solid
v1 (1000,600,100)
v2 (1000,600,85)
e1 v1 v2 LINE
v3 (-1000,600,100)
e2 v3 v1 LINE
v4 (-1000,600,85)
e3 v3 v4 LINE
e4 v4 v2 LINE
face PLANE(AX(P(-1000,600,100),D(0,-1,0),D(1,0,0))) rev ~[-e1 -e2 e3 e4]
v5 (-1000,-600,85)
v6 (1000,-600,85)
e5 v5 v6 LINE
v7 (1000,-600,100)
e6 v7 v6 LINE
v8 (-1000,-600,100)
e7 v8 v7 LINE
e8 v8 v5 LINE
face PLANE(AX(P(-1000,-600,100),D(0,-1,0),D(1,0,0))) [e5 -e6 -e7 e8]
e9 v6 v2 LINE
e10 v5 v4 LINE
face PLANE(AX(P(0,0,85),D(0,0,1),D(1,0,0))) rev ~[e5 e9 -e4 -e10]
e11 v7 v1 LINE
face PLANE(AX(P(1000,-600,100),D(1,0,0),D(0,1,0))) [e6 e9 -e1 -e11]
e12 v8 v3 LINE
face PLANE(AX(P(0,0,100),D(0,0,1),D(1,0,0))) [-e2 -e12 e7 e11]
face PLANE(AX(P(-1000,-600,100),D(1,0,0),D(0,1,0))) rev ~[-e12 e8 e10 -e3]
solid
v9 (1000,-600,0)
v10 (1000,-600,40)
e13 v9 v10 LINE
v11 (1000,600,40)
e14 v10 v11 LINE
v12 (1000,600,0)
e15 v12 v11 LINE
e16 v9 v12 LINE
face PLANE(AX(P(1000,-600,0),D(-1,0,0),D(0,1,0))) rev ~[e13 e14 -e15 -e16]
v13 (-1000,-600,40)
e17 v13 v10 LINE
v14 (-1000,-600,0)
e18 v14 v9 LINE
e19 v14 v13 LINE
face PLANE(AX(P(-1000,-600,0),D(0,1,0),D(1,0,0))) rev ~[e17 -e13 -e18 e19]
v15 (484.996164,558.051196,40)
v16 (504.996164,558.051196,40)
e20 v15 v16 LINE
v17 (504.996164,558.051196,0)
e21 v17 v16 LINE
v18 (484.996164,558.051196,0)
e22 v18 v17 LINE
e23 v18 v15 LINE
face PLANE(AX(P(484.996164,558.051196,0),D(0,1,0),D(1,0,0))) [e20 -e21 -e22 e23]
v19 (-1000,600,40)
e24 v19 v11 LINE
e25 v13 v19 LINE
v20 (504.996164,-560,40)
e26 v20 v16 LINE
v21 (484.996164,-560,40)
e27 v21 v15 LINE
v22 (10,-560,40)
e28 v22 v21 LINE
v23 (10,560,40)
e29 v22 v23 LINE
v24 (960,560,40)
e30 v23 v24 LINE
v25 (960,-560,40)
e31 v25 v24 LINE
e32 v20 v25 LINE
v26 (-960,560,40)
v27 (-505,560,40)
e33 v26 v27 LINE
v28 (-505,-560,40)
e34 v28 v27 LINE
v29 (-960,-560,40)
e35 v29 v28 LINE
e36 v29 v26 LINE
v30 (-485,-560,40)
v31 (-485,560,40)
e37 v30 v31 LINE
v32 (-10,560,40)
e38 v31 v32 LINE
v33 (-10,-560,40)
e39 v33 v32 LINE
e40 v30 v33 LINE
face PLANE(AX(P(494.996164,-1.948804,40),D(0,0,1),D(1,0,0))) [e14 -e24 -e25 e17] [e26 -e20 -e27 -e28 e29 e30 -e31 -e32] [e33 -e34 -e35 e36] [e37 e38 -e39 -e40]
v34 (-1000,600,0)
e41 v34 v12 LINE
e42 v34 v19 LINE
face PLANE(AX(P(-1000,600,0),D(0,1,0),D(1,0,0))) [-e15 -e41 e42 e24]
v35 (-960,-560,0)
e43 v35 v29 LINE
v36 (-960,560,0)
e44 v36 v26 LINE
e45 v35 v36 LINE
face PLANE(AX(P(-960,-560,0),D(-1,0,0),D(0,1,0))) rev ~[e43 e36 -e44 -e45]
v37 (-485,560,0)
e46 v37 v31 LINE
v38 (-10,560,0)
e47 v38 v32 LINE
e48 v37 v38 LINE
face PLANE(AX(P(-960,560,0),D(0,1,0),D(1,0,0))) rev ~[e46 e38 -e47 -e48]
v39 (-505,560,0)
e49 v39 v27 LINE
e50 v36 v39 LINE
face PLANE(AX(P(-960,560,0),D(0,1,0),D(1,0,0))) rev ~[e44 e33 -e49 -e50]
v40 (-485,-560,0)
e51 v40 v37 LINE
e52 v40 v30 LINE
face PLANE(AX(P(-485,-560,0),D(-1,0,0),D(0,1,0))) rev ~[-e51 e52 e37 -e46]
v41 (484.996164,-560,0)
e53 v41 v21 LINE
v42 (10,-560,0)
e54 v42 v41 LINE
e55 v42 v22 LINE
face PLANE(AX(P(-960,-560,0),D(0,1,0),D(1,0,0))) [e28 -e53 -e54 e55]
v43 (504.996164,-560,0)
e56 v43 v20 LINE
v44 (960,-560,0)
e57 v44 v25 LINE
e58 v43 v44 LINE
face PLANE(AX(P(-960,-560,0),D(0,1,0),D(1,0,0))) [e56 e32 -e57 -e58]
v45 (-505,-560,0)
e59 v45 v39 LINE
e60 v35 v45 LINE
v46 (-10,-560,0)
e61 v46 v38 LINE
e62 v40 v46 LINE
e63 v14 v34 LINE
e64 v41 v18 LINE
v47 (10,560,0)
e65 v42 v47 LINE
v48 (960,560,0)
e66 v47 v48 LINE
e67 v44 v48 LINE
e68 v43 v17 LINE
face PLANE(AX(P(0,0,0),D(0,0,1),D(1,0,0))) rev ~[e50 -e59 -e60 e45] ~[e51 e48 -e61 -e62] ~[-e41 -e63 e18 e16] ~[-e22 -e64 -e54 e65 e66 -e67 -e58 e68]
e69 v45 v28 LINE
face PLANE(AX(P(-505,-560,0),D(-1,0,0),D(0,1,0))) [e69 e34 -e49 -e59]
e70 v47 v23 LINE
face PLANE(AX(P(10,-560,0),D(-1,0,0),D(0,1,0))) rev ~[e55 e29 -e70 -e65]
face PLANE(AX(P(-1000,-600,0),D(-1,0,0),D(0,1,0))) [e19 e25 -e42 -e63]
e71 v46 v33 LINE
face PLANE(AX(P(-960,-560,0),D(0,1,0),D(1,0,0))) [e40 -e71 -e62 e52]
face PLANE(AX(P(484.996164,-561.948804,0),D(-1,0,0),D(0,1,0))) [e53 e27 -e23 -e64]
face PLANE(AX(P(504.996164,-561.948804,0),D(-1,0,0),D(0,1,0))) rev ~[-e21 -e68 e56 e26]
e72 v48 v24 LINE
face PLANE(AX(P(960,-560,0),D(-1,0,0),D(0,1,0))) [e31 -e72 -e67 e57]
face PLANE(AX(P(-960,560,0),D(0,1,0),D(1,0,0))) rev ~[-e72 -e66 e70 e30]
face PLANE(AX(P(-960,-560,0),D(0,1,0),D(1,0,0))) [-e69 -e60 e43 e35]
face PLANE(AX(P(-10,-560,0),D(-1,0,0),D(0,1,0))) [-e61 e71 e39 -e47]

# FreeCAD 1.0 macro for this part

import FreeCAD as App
import Part
import Sketcher


def add_polygon(sketch, points):
    """Adds a closed chain of lines whose ends are joined by coincident constraints."""
    first, n = sketch.GeometryCount, len(points)
    for a, b in zip(points, points[1:] + points[:1]):
        sketch.addGeometry(Part.LineSegment(App.Vector(*a, 0), App.Vector(*b, 0)), False)
    for i in range(n):
        sketch.addConstraint(Sketcher.Constraint("Coincident", first + i, 2, first + (i + 1) % n, 1))

doc = App.newDocument("Part")
body = doc.addObject("PartDesign::Body", "Body")

# Sketch on XY plane
sketch1 = body.newObject("Sketcher::SketchObject", "Sketch")
sketch1.AttachmentSupport = (doc.getObject("XY_Plane"), [""])
sketch1.MapMode = "FlatFace"
add_polygon(sketch1, [(-1000, 600), (-1000, -600), (1000, -600), (1000, 600)])  # lines 0-3
add_polygon(sketch1, [(960, -560), (-960, -560), (-960, 560), (960, 560)])  # lines 4-7
sketch1.addConstraint(Sketcher.Constraint("Vertical", 0))
sketch1.addConstraint(Sketcher.Constraint("Horizontal", 1))
sketch1.addConstraint(Sketcher.Constraint("Vertical", 2))
sketch1.addConstraint(Sketcher.Constraint("Horizontal", 3))
sketch1.addConstraint(Sketcher.Constraint("Horizontal", 4))
sketch1.addConstraint(Sketcher.Constraint("Vertical", 5))
sketch1.addConstraint(Sketcher.Constraint("Horizontal", 6))
sketch1.addConstraint(Sketcher.Constraint("Vertical", 7))
sketch1.addConstraint(Sketcher.Constraint("Symmetric", 0, 2, 2, 2, -1, 1))
sketch1.addConstraint(Sketcher.Constraint("Symmetric", 4, 2, 6, 2, -1, 1))
sketch1.addConstraint(Sketcher.Constraint("DistanceX", 1, 1, 1, 2, 2000.0))
sketch1.addConstraint(Sketcher.Constraint("DistanceX", 4, 2, 4, 1, 1920.0))
sketch1.addConstraint(Sketcher.Constraint("DistanceY", 0, 2, 0, 1, 1200.0))
sketch1.addConstraint(Sketcher.Constraint("DistanceY", 5, 1, 5, 2, 1120.0))
pad1 = body.newObject("PartDesign::Pad", "Pad")
pad1.Profile = sketch1
pad1.Length = 40

# Sketch on XY plane
sketch2 = body.newObject("Sketcher::SketchObject", "Sketch001")
sketch2.AttachmentSupport = (doc.getObject("XY_Plane"), [""])
sketch2.MapMode = "FlatFace"
add_polygon(sketch2, [(-10, 560), (-10, -560), (10, -560), (10, 560)])  # lines 0-3
add_polygon(sketch2, [(484.996164, 558.051196), (484.996164, -561.948804), (504.996164, -561.948804), (504.996164, 558.051196)])  # lines 4-7
add_polygon(sketch2, [(-505, 560), (-505, -560), (-485, -560), (-485, 560)])  # lines 8-11
sketch2.addConstraint(Sketcher.Constraint("Vertical", 0))
sketch2.addConstraint(Sketcher.Constraint("Horizontal", 1))
sketch2.addConstraint(Sketcher.Constraint("Vertical", 2))
sketch2.addConstraint(Sketcher.Constraint("Horizontal", 3))
sketch2.addConstraint(Sketcher.Constraint("Vertical", 4))
sketch2.addConstraint(Sketcher.Constraint("Horizontal", 5))
sketch2.addConstraint(Sketcher.Constraint("Vertical", 6))
sketch2.addConstraint(Sketcher.Constraint("Horizontal", 7))
sketch2.addConstraint(Sketcher.Constraint("Vertical", 8))
sketch2.addConstraint(Sketcher.Constraint("Horizontal", 9))
sketch2.addConstraint(Sketcher.Constraint("Vertical", 10))
sketch2.addConstraint(Sketcher.Constraint("Horizontal", 11))
sketch2.addConstraint(Sketcher.Constraint("Symmetric", 0, 2, 2, 2, -1, 1))
sketch2.addConstraint(Sketcher.Constraint("Horizontal", 1, 2, 8, 2))
sketch2.addConstraint(Sketcher.Constraint("Horizontal", 3, 2, 10, 2))
sketch2.addConstraint(Sketcher.Constraint("Equal", 3, 5))
sketch2.addConstraint(Sketcher.Constraint("Equal", 7, 9))
sketch2.addConstraint(Sketcher.Constraint("Equal", 2, 4))
sketch2.addConstraint(Sketcher.Constraint("DistanceX", 1, 1, 1, 2, 20.0))
sketch2.addConstraint(Sketcher.Constraint("DistanceY", 0, 2, 0, 1, 1120.0))
sketch2.addConstraint(Sketcher.Constraint("DistanceX", 8, 2, -1, 1, 505.0))
sketch2.addConstraint(Sketcher.Constraint("DistanceX", -1, 1, 4, 2, 484.996164))
sketch2.addConstraint(Sketcher.Constraint("DistanceY", 4, 2, -1, 1, 561.948804))
pad2 = body.newObject("PartDesign::Pad", "Pad001")
pad2.Profile = sketch2
pad2.Length = 40
body2 = doc.addObject("PartDesign::Body", "Body001")

# Sketch on XY plane
sketch3 = body2.newObject("Sketcher::SketchObject", "Sketch002")
sketch3.AttachmentSupport = (doc.getObject("XY_Plane001"), [""])
sketch3.MapMode = "FlatFace"
sketch3.AttachmentOffset = App.Placement(App.Vector(0, 0, 100), App.Rotation())
add_polygon(sketch3, [(-1000, 600), (-1000, -600), (1000, -600), (1000, 600)])  # lines 0-3
sketch3.addConstraint(Sketcher.Constraint("Vertical", 0))
sketch3.addConstraint(Sketcher.Constraint("Horizontal", 1))
sketch3.addConstraint(Sketcher.Constraint("Vertical", 2))
sketch3.addConstraint(Sketcher.Constraint("Horizontal", 3))
sketch3.addConstraint(Sketcher.Constraint("Symmetric", 0, 2, 2, 2, -1, 1))
sketch3.addConstraint(Sketcher.Constraint("DistanceX", 1, 1, 1, 2, 2000.0))
sketch3.addConstraint(Sketcher.Constraint("DistanceY", 0, 2, 0, 1, 1200.0))
pad3 = body2.newObject("PartDesign::Pad", "Pad002")
pad3.Profile = sketch3
pad3.Length = 15
pad3.Reversed = True

doc.recompute()
